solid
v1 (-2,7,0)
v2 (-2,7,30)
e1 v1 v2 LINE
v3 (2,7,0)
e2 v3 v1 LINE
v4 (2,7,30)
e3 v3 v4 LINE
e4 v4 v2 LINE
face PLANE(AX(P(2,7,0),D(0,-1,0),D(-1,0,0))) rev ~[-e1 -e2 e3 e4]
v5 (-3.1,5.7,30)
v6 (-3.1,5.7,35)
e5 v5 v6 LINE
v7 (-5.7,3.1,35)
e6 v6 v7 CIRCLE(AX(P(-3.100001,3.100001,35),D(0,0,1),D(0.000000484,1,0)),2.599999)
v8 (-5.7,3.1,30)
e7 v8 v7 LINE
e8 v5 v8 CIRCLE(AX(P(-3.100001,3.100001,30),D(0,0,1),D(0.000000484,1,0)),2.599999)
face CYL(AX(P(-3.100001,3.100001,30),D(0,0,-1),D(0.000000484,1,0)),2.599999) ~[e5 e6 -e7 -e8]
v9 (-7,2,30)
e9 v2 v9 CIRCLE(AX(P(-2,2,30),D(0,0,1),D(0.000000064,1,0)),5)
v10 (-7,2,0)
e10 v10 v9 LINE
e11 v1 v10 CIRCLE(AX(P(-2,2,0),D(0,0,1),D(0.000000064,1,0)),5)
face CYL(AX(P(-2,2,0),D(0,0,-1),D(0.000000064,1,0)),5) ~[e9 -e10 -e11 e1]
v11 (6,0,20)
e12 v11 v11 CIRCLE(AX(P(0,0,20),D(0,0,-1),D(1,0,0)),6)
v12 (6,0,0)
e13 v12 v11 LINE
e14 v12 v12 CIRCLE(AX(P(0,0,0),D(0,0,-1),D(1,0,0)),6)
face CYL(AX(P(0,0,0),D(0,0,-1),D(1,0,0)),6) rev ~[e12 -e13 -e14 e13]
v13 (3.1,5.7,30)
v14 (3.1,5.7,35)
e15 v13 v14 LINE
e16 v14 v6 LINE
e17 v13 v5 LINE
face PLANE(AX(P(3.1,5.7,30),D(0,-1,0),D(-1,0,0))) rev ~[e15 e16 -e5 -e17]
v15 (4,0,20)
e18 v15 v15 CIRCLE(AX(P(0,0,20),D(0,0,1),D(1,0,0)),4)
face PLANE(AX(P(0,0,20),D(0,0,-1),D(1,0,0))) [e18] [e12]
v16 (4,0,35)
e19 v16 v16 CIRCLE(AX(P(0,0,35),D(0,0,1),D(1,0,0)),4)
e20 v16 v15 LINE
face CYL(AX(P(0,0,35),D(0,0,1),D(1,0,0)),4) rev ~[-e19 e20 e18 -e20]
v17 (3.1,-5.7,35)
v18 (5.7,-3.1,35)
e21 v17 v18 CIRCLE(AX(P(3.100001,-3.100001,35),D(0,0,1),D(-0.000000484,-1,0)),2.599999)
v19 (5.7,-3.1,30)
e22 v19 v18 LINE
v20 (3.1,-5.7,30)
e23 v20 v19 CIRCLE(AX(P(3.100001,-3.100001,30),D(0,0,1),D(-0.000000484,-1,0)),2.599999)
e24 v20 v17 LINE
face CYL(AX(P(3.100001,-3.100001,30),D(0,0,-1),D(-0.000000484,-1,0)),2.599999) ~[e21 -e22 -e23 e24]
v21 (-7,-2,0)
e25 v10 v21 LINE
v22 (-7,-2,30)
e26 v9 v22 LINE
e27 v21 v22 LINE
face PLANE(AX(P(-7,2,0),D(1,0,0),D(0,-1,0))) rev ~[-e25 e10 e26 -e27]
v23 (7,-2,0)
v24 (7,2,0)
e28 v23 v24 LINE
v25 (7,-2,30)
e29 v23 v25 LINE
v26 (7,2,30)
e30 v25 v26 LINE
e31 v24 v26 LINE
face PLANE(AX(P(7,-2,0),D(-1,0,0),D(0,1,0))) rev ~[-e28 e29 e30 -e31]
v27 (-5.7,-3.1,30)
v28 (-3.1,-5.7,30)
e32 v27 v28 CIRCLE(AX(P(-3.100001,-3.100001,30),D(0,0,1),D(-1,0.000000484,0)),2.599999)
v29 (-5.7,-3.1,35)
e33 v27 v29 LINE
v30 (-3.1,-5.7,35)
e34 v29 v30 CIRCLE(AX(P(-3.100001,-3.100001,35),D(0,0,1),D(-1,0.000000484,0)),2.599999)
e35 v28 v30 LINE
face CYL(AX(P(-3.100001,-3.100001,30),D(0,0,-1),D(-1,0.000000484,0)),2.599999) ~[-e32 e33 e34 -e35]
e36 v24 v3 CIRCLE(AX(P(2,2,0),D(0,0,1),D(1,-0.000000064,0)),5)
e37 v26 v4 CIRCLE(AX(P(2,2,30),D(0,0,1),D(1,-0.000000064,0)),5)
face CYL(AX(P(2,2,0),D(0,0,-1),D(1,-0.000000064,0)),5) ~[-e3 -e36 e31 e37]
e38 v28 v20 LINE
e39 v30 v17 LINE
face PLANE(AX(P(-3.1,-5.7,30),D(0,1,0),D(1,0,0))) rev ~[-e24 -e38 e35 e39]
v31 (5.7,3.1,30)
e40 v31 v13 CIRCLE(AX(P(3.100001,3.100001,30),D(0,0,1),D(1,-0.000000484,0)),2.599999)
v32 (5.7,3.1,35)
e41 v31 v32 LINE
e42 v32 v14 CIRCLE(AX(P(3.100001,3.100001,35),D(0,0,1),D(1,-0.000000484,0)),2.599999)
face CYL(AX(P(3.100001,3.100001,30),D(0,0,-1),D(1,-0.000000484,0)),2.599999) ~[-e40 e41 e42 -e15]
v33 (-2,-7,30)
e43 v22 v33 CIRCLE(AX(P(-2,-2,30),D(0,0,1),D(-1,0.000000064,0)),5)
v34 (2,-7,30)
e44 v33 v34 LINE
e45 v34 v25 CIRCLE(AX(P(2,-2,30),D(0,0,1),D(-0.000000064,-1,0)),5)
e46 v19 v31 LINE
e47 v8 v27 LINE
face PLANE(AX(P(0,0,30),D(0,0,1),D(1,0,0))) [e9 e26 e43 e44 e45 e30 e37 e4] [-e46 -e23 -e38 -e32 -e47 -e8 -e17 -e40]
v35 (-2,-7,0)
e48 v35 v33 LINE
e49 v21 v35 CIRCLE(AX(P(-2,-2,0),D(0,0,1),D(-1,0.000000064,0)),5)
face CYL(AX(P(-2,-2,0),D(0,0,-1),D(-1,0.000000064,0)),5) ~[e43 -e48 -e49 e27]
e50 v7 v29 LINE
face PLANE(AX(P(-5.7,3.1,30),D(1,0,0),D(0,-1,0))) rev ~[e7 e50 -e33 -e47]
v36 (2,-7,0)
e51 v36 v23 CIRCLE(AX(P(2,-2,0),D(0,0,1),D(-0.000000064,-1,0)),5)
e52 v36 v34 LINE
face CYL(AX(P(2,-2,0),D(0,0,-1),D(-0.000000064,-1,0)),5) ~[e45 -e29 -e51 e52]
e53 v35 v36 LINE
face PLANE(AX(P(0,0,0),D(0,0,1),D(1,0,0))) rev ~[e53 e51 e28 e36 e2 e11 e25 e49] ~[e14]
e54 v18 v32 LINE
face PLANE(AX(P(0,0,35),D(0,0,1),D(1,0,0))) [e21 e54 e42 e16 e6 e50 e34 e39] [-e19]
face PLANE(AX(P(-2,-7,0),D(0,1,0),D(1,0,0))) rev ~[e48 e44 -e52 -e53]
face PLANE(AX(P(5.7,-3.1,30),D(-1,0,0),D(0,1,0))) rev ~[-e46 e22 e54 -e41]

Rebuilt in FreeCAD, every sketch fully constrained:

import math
import FreeCAD as App
import Part
import Sketcher

V = App.Vector

doc = App.newDocument("Part")
params = doc.addObject("Spreadsheet::Sheet", "Params")
for row, (alias, value) in enumerate([
    ("sketch1_radius", "5 mm"),
    ("sketch1_width", "4 mm"),
    ("pad1_length", "30 mm"),
    ("sketch2_radius", "2.599999 mm"),
    ("sketch2_width", "6.2 mm"),
    ("pad2_length", "5 mm"),
    ("sketch3_diameter", "8 mm"),
    ("pocket1_length", "15 mm"),
    ("sketch4_diameter", "12 mm"),
    ("pocket2_length", "20 mm"),
], start=1):
    params.set(f"A{row}", alias)
    params.set(f"B{row}", "=" + value)
    params.setAlias(f"B{row}", alias)

body = doc.addObject("PartDesign::Body", "Body")

# Sketch on XY plane
sketch1 = doc.addObject("Sketcher::SketchObject", "Sketch")
body.addObject(sketch1)
sketch1.AttachmentSupport = (doc.XY_Plane, [""])
sketch1.MapMode = "FlatFace"
sketch1.addGeometry([
    Part.ArcOfCircle(Part.Circle(V(2, 2, 0), V(0, 0, 1), 5), math.radians(0), math.radians(90)),  # 0
    Part.LineSegment(V(2, 7, 0), V(-2, 7, 0)),  # 1
    Part.ArcOfCircle(Part.Circle(V(-2, 2, 0), V(0, 0, 1), 5), math.radians(90), math.radians(180)),  # 2
    Part.LineSegment(V(-7, 2, 0), V(-7, -2, 0)),  # 3
    Part.ArcOfCircle(Part.Circle(V(-2, -2, 0), V(0, 0, 1), 5), math.radians(180), math.radians(270)),  # 4
    Part.LineSegment(V(-2, -7, 0), V(2, -7, 0)),  # 5
    Part.ArcOfCircle(Part.Circle(V(2, -2, 0), V(0, 0, 1), 5), math.radians(-90), math.radians(0)),  # 6
    Part.LineSegment(V(7, -2, 0), V(7, 2, 0)),  # 7
], False)
sketch1.addConstraint([
    Sketcher.Constraint("Tangent", 0, 2, 1, 1),
    Sketcher.Constraint("Tangent", 1, 2, 2, 1),
    Sketcher.Constraint("Tangent", 2, 2, 3, 1),
    Sketcher.Constraint("Tangent", 3, 2, 4, 1),
    Sketcher.Constraint("Tangent", 4, 2, 5, 1),
    Sketcher.Constraint("Tangent", 5, 2, 6, 1),
    Sketcher.Constraint("Tangent", 6, 2, 7, 1),
    Sketcher.Constraint("Tangent", 7, 2, 0, 1),
    Sketcher.Constraint("Horizontal", 1),
    Sketcher.Constraint("Vertical", 3),
    Sketcher.Constraint("Horizontal", 5),
    Sketcher.Constraint("Vertical", 7),
    Sketcher.Constraint("Equal", 0, 2),
    Sketcher.Constraint("Equal", 2, 4),
    Sketcher.Constraint("Equal", 4, 6),
    Sketcher.Constraint("Symmetric", 0, 3, 4, 3, -1, 1),
    Sketcher.Constraint("Equal", 5, 3),
    Sketcher.Constraint("Radius", 0, 5.0),
    Sketcher.Constraint("DistanceX", 1, 2, 1, 1, 4.0),
])
sketch1.setExpression("Constraints[17]", "Params.sketch1_radius")
sketch1.setExpression("Constraints[18]", "Params.sketch1_width")
pad1 = doc.addObject("PartDesign::Pad", "Pad")
body.addObject(pad1)
pad1.Profile = sketch1
pad1.setExpression("Length", "Params.pad1_length")

# Sketch on XY plane
sketch2 = doc.addObject("Sketcher::SketchObject", "Sketch001")
body.addObject(sketch2)
sketch2.AttachmentSupport = (doc.XY_Plane, [""])
sketch2.MapMode = "FlatFace"
sketch2.AttachmentOffset = App.Placement(V(0, 0, 30), App.Rotation())
sketch2.addGeometry([
    Part.ArcOfCircle(Part.Circle(V(3.1, 3.1, 0), V(0, 0, 1), 2.6), math.radians(0), math.radians(90)),  # 0
    Part.LineSegment(V(3.1, 5.7, 0), V(-3.1, 5.7, 0)),  # 1
    Part.ArcOfCircle(Part.Circle(V(-3.1, 3.1, 0), V(0, 0, 1), 2.6), math.radians(90), math.radians(180)),  # 2
    Part.LineSegment(V(-5.7, 3.1, 0), V(-5.7, -3.1, 0)),  # 3
    Part.ArcOfCircle(Part.Circle(V(-3.1, -3.1, 0), V(0, 0, 1), 2.6), math.radians(180), math.radians(270)),  # 4
    Part.LineSegment(V(-3.1, -5.7, 0), V(3.1, -5.7, 0)),  # 5
    Part.ArcOfCircle(Part.Circle(V(3.1, -3.1, 0), V(0, 0, 1), 2.6), math.radians(-90), math.radians(0)),  # 6
    Part.LineSegment(V(5.7, -3.1, 0), V(5.7, 3.1, 0)),  # 7
], False)
sketch2.addConstraint([
    Sketcher.Constraint("Tangent", 0, 2, 1, 1),
    Sketcher.Constraint("Tangent", 1, 2, 2, 1),
    Sketcher.Constraint("Tangent", 2, 2, 3, 1),
    Sketcher.Constraint("Tangent", 3, 2, 4, 1),
    Sketcher.Constraint("Tangent", 4, 2, 5, 1),
    Sketcher.Constraint("Tangent", 5, 2, 6, 1),
    Sketcher.Constraint("Tangent", 6, 2, 7, 1),
    Sketcher.Constraint("Tangent", 7, 2, 0, 1),
    Sketcher.Constraint("Horizontal", 1),
    Sketcher.Constraint("Vertical", 3),
    Sketcher.Constraint("Horizontal", 5),
    Sketcher.Constraint("Vertical", 7),
    Sketcher.Constraint("Equal", 0, 2),
    Sketcher.Constraint("Equal", 2, 4),
    Sketcher.Constraint("Equal", 4, 6),
    Sketcher.Constraint("Symmetric", 0, 3, 4, 3, -1, 1),
    Sketcher.Constraint("Equal", 5, 3),
    Sketcher.Constraint("Radius", 0, 2.599999),
    Sketcher.Constraint("DistanceX", 1, 2, 1, 1, 6.2),
])
sketch2.setExpression("Constraints[17]", "Params.sketch2_radius")
sketch2.setExpression("Constraints[18]", "Params.sketch2_width")
pad2 = doc.addObject("PartDesign::Pad", "Pad001")
body.addObject(pad2)
pad2.Profile = sketch2
pad2.setExpression("Length", "Params.pad2_length")

# Sketch on XY plane
sketch3 = doc.addObject("Sketcher::SketchObject", "Sketch002")
body.addObject(sketch3)
sketch3.AttachmentSupport = (doc.XY_Plane, [""])
sketch3.MapMode = "FlatFace"
sketch3.AttachmentOffset = App.Placement(V(0, 0, 35), App.Rotation())
sketch3.addGeometry(Part.Circle(V(0, 0, 0), V(0, 0, 1), 4), False)
sketch3.addConstraint([
    Sketcher.Constraint("Coincident", 0, 3, -1, 1),
    Sketcher.Constraint("Diameter", 0, 8.0),
])
sketch3.setExpression("Constraints[1]", "Params.sketch3_diameter")
pocket1 = doc.addObject("PartDesign::Pocket", "Pocket")
body.addObject(pocket1)
pocket1.Profile = sketch3
pocket1.setExpression("Length", "Params.pocket1_length")

# Sketch on XY plane
sketch4 = doc.addObject("Sketcher::SketchObject", "Sketch003")
body.addObject(sketch4)
sketch4.AttachmentSupport = (doc.XY_Plane, [""])
sketch4.MapMode = "FlatFace"
sketch4.addGeometry(Part.Circle(V(0, 0, 0), V(0, 0, 1), 6), False)
sketch4.addConstraint([
    Sketcher.Constraint("Coincident", 0, 3, -1, 1),
    Sketcher.Constraint("Diameter", 0, 12.0),
])
sketch4.setExpression("Constraints[1]", "Params.sketch4_diameter")
pocket2 = doc.addObject("PartDesign::Pocket", "Pocket001")
body.addObject(pocket2)
pocket2.Profile = sketch4
pocket2.setExpression("Length", "Params.pocket2_length")
pocket2.Reversed = True

doc.recompute()
